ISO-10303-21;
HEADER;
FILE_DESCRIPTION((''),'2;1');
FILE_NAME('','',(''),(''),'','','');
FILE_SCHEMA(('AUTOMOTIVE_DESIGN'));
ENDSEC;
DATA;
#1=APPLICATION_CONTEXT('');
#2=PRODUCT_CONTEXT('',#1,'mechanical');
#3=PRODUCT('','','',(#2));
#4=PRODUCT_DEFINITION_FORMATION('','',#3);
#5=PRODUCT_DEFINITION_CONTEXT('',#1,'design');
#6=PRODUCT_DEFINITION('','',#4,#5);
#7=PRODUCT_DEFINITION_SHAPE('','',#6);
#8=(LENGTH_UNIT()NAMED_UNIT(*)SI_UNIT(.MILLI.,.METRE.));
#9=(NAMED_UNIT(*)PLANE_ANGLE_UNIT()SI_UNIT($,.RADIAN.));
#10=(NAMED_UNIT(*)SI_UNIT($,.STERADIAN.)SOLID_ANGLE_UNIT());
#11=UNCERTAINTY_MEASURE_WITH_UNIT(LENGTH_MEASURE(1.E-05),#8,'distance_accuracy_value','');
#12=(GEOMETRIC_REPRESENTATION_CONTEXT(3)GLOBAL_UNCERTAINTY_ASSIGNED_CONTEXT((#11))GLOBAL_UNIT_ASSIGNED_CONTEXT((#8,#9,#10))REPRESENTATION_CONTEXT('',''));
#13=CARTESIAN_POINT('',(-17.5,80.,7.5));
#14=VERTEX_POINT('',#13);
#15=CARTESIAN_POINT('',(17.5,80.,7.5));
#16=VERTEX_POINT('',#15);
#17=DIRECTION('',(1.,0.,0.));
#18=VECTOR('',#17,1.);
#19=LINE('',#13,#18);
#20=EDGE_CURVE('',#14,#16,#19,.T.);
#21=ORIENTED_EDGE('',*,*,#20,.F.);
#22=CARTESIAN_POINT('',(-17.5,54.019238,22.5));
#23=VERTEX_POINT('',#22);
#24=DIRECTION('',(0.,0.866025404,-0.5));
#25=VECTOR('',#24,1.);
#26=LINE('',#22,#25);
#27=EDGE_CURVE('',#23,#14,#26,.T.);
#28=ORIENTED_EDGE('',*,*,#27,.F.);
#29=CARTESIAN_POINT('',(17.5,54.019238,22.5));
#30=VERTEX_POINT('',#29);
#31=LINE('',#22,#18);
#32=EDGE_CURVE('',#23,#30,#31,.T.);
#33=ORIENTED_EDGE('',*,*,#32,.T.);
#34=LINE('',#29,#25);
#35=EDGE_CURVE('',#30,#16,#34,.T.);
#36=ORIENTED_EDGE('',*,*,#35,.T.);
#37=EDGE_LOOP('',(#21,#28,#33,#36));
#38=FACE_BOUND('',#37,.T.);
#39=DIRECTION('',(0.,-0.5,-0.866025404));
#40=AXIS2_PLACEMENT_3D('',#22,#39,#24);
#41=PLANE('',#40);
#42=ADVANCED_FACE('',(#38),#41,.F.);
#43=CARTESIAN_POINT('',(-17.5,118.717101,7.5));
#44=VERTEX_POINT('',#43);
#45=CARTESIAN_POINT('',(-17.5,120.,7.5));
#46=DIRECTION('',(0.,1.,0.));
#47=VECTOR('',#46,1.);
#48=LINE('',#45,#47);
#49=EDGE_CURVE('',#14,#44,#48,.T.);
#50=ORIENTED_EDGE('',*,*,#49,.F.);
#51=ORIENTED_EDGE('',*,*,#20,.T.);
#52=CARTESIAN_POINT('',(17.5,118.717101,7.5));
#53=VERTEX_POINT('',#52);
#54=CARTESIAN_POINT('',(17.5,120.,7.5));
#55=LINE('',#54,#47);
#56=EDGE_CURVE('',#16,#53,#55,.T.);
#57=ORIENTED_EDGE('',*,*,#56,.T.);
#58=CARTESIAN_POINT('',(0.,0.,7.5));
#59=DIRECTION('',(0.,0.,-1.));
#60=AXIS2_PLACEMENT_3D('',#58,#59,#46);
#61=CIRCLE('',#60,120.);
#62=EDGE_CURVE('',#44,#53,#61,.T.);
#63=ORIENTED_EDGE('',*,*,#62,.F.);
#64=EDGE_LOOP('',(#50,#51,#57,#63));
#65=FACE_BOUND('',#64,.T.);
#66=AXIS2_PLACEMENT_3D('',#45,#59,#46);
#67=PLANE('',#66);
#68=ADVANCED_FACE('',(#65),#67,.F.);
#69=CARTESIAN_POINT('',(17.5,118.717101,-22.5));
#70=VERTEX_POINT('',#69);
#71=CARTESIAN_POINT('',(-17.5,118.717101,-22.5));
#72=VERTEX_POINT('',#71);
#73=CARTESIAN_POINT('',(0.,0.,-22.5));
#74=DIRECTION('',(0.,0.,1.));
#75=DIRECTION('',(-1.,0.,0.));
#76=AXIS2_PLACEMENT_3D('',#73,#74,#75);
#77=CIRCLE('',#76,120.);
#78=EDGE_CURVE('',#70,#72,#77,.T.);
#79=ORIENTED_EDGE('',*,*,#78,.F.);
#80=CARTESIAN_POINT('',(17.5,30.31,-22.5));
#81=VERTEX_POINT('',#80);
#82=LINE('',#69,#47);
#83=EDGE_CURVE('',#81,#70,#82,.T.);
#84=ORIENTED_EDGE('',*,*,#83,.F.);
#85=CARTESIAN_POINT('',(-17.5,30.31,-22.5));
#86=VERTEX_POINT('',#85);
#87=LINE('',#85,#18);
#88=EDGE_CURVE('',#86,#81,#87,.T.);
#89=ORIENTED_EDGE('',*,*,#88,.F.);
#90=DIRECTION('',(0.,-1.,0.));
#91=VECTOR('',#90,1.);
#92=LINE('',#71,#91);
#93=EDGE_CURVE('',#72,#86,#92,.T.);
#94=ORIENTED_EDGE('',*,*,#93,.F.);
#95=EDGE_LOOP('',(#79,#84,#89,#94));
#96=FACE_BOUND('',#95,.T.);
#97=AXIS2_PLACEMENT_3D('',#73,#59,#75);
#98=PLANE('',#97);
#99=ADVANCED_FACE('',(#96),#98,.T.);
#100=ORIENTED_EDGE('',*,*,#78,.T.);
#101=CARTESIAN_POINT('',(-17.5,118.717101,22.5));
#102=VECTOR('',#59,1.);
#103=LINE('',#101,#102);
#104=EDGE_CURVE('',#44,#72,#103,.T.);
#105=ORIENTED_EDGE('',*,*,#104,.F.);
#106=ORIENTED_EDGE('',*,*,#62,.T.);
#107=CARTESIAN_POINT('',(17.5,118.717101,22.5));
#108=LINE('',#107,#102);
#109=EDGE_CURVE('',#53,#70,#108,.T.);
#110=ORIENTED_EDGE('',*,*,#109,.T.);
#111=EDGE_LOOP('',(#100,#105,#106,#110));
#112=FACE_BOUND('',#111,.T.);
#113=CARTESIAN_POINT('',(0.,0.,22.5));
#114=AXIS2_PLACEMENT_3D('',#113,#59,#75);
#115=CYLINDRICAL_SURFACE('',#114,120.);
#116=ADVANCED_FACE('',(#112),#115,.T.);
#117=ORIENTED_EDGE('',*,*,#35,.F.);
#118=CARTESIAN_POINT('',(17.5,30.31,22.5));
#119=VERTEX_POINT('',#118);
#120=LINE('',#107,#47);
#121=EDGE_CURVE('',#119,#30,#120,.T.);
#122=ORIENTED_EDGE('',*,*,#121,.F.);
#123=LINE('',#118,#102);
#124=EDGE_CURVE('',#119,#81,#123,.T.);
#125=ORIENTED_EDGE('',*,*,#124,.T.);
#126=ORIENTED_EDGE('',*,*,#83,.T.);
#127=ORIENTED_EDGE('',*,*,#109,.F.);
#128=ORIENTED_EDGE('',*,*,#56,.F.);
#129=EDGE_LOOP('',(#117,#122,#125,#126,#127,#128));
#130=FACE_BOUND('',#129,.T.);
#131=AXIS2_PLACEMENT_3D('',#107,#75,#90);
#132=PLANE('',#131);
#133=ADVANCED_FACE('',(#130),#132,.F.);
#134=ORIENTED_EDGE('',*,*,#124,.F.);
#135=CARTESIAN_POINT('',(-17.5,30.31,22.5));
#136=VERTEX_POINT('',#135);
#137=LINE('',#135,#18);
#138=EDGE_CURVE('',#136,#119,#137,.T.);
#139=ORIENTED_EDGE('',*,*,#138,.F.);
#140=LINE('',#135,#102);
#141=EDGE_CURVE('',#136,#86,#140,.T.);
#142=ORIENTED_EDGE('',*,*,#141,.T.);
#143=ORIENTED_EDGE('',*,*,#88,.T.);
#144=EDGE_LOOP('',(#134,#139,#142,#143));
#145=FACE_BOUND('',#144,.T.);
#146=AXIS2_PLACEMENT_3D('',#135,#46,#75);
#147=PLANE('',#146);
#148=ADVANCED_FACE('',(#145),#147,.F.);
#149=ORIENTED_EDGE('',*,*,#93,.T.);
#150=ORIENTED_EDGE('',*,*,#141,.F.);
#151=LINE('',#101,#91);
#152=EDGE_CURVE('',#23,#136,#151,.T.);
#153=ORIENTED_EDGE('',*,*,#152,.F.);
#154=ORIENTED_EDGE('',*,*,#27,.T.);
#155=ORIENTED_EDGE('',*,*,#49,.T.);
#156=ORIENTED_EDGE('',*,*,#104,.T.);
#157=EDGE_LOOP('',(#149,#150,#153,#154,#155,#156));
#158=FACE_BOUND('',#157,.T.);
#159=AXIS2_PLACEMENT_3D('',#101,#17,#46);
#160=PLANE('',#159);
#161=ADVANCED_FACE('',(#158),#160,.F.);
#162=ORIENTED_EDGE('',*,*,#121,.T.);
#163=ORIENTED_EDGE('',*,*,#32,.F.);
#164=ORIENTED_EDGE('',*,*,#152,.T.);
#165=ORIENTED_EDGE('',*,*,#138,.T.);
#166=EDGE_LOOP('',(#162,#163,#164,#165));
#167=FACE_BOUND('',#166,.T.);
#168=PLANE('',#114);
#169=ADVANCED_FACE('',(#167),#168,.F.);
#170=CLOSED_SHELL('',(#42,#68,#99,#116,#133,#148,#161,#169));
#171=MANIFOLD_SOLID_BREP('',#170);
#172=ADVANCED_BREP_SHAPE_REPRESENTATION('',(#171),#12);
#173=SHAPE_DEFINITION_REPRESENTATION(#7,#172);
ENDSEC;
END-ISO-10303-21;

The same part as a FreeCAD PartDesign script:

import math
import FreeCAD as App
import Part
import Sketcher
from FreeCAD import Vector
Q = App.Units.Quantity

doc = App.newDocument("Part")
body = doc.addObject("PartDesign::Body", "Body")

sketch1 = doc.addObject("Sketcher::SketchObject", "Sketch")
body.addObject(sketch1)
sketch1.AttachmentSupport = (doc.XY_Plane, [""])
sketch1.MapMode = "FlatFace"
sketch1.addGeometry(Part.LineSegment(Vector(-18, 119, 0), Vector(-18, 30, 0)), False)
sketch1.addGeometry(Part.LineSegment(Vector(-18, 30, 0), Vector(18, 30, 0)), False)
sketch1.addGeometry(Part.LineSegment(Vector(18, 30, 0), Vector(18, 119, 0)), False)
sketch1.addGeometry(Part.ArcOfCircle(Part.Circle(Vector(0, 0, 0), Vector(0, 0, 1), 120), math.radians(81.61), math.radians(98.39)), False)
sketch1.addConstraint(Sketcher.Constraint("Coincident", 0, 2, 1, 1))
sketch1.addConstraint(Sketcher.Constraint("Coincident", 1, 2, 2, 1))
sketch1.addConstraint(Sketcher.Constraint("Coincident", 2, 2, 3, 1))
sketch1.addConstraint(Sketcher.Constraint("Coincident", 3, 2, 0, 1))
sketch1.addConstraint(Sketcher.Constraint("Vertical", 0))
sketch1.addConstraint(Sketcher.Constraint("Horizontal", 1))
sketch1.addConstraint(Sketcher.Constraint("Vertical", 2))
sketch1.addConstraint(Sketcher.Constraint("Coincident", 3, 3, -1, 1))
sketch1.addConstraint(Sketcher.Constraint("Horizontal", 2, 2, 3, 2))
sketch1.addConstraint(Sketcher.Constraint("Radius", 3, 120.0))
sketch1.addConstraint(Sketcher.Constraint("DistanceX", 1, 1, 1, 2, 35.0))
sketch1.addConstraint(Sketcher.Constraint("DistanceY", -1, 1, 0, 2, 30.31))
pad1 = doc.addObject("PartDesign::Pad", "Pad")
body.addObject(pad1)
pad1.Profile = sketch1
pad1.Length = 45
pad1.Midplane = True

sketch2 = doc.addObject("Sketcher::SketchObject", "Sketch001")
body.addObject(sketch2)
sketch2.AttachmentSupport = (doc.YZ_Plane, [""])
sketch2.MapMode = "FlatFace"
sketch2.AttachmentOffset = App.Placement(Vector(0, 0, 17.5), App.Rotation())
sketch2.addGeometry(Part.LineSegment(Vector(54, 22, 0), Vector(80, 8, 0)), False)
sketch2.addGeometry(Part.LineSegment(Vector(80, 8, 0), Vector(120, 8, 0)), False)
sketch2.addGeometry(Part.LineSegment(Vector(120, 8, 0), Vector(120, 22, 0)), False)
sketch2.addGeometry(Part.LineSegment(Vector(120, 22, 0), Vector(54, 22, 0)), False)
sketch2.addConstraint(Sketcher.Constraint("Coincident", 0, 2, 1, 1))
sketch2.addConstraint(Sketcher.Constraint("Coincident", 1, 2, 2, 1))
sketch2.addConstraint(Sketcher.Constraint("Coincident", 2, 2, 3, 1))
sketch2.addConstraint(Sketcher.Constraint("Coincident", 3, 2, 0, 1))
sketch2.addConstraint(Sketcher.Constraint("Horizontal", 1))
sketch2.addConstraint(Sketcher.Constraint("Vertical", 2))
sketch2.addConstraint(Sketcher.Constraint("Horizontal", 3))
sketch2.addConstraint(Sketcher.Constraint("DistanceX", 1, 1, 1, 2, 40.0))
sketch2.addConstraint(Sketcher.Constraint("DistanceY", 2, 1, 2, 2, 15.0))
sketch2.addConstraint(Sketcher.Constraint("Angle", 0, Q("-30 deg")))
sketch2.addConstraint(Sketcher.Constraint("DistanceX", -1, 1, 0, 2, 80.0))
sketch2.addConstraint(Sketcher.Constraint("DistanceY", -1, 1, 0, 2, 7.5))
pocket1 = doc.addObject("PartDesign::Pocket", "Pocket")
body.addObject(pocket1)
pocket1.Profile = sketch2
pocket1.Type = "ThroughAll"

doc.recompute()
